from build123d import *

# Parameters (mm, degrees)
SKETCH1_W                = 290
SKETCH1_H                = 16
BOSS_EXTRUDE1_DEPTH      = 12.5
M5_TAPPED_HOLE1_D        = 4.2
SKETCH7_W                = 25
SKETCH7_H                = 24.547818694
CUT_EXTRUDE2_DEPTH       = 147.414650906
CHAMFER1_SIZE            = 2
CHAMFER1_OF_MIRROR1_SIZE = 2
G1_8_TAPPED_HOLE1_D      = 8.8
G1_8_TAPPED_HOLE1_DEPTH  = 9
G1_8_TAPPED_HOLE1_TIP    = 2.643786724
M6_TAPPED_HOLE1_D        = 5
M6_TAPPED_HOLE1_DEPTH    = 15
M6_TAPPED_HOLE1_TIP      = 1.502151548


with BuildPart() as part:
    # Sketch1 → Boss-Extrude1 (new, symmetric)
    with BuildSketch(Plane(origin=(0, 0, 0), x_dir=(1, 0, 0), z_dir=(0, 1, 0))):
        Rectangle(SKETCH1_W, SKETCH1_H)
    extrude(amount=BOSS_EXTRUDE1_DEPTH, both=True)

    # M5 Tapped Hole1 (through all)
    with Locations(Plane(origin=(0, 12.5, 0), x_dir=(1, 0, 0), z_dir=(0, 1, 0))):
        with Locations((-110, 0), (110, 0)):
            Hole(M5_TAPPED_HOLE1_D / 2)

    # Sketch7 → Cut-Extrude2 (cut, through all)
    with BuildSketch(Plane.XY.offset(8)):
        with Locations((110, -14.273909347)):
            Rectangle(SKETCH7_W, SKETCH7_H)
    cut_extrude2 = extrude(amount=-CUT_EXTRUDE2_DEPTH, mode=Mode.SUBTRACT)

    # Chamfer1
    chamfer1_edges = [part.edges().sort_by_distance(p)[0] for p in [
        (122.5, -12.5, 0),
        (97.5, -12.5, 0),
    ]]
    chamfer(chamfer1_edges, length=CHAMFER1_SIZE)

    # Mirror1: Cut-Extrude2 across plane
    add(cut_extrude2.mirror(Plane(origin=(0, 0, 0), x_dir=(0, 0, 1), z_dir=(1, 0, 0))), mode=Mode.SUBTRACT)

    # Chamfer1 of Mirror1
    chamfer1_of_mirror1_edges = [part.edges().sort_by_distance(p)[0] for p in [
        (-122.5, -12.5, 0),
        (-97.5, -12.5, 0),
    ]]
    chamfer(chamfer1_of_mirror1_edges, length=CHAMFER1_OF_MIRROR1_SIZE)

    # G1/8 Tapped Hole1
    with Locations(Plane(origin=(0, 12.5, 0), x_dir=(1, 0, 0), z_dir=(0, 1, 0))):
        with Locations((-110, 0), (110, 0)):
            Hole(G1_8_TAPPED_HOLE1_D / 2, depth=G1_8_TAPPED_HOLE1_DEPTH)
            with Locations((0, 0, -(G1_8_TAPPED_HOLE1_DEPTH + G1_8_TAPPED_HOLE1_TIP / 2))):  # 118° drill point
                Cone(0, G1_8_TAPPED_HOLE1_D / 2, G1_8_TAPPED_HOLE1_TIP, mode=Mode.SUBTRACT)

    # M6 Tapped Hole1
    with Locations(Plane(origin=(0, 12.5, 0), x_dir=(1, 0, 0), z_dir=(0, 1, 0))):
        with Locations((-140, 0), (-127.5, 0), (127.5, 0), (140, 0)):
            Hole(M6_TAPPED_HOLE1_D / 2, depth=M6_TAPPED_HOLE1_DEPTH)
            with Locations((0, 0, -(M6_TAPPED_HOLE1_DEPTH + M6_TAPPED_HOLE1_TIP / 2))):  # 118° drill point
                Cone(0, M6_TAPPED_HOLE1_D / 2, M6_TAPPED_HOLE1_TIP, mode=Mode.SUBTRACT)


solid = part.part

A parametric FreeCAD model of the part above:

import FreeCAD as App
import Part
import Sketcher
Q = App.Units.Quantity


def edges_at(feature, points):
    """Names of the edges that pass closest to the given points."""
    edges = feature.Shape.Edges
    near = lambda p: min(range(len(edges)), key=lambda i: edges[i].distToShape(Part.Vertex(*p))[0])
    return sorted({f"Edge{near(p) + 1}" for p in points})


def add_polygon(sketch, points):
    """Adds a closed chain of lines whose ends are joined by coincident constraints."""
    first, n = sketch.GeometryCount, len(points)
    for a, b in zip(points, points[1:] + points[:1]):
        sketch.addGeometry(Part.LineSegment(App.Vector(*a, 0), App.Vector(*b, 0)), False)
    for i in range(n):
        sketch.addConstraint(Sketcher.Constraint("Coincident", first + i, 2, first + (i + 1) % n, 1))

doc = App.newDocument("Part")
body = doc.addObject("PartDesign::Body", "Body")

sketch1 = body.newObject("Sketcher::SketchObject", "Sketch")
sketch1.AttachmentSupport = (doc.getObject("XZ_Plane"), [""])
sketch1.MapMode = "FlatFace"
add_polygon(sketch1, [(-145, -8), (-145, 8), (145, 8), (145, -8)])
sketch1.addConstraint([
    Sketcher.Constraint("Vertical", 0),
    Sketcher.Constraint("Horizontal", 1),
    Sketcher.Constraint("Vertical", 2),
    Sketcher.Constraint("Horizontal", 3),
    Sketcher.Constraint("Symmetric", 0, 2, 2, 2, -1, 1),
    Sketcher.Constraint("DistanceX", 1, 1, 1, 2, Q("290 mm")),
    Sketcher.Constraint("DistanceY", 0, 1, 0, 2, Q("16 mm")),
])
pad1 = body.newObject("PartDesign::Pad", "Pad")
pad1.Profile = sketch1
pad1.Length = 25
pad1.Midplane = True

sketch2 = body.newObject("Sketcher::SketchObject", "Sketch001")
sketch2.AttachmentSupport = (doc.getObject("XZ_Plane"), [""])
sketch2.MapMode = "FlatFace"
sketch2.AttachmentOffset = App.Placement(App.Vector(0, 0, -12.5), App.Rotation())
sketch2.addGeometry([
    Part.Circle(App.Vector(-110, 0, 0), App.Vector(0, 0, 1), 2.1),
    Part.Circle(App.Vector(110, 0, 0), App.Vector(0, 0, 1), 2.1),
], False)
sketch2.addConstraint([
    Sketcher.Constraint("Equal", 0, 1),
    Sketcher.Constraint("Symmetric", 0, 3, 1, 3, -1, 1),
    Sketcher.Constraint("PointOnObject", 0, 3, -1),
    Sketcher.Constraint("Diameter", 0, Q("4.2 mm")),
    Sketcher.Constraint("DistanceX", 0, 3, -1, 1, Q("110 mm")),
])
doc.recompute()
hole = body.newObject("PartDesign::Hole", "Hole")
hole.Profile = sketch2
hole.ThreadType = "None"
hole.Diameter = 4.2
hole.DepthType = "ThroughAll"
hole.Reversed = True

sketch3 = body.newObject("Sketcher::SketchObject", "Sketch002")
sketch3.AttachmentSupport = (doc.getObject("XY_Plane"), [""])
sketch3.MapMode = "FlatFace"
sketch3.AttachmentOffset = App.Placement(App.Vector(0, 0, 8), App.Rotation())
add_polygon(sketch3, [(97.5, -2), (97.5, -26.547819), (122.5, -26.547819), (122.5, -2)])
sketch3.addConstraint([
    Sketcher.Constraint("Vertical", 0),
    Sketcher.Constraint("Horizontal", 1),
    Sketcher.Constraint("Vertical", 2),
    Sketcher.Constraint("Horizontal", 3),
    Sketcher.Constraint("DistanceX", 1, 1, 1, 2, Q("25 mm")),
    Sketcher.Constraint("DistanceY", 2, 2, -1, 1, Q("2 mm")),
    Sketcher.Constraint("DistanceX", -1, 1, 0, 2, Q("97.5 mm")),
    Sketcher.Constraint("DistanceY", 0, 2, 0, 1, Q("24.547819 mm")),
])
pocket1 = body.newObject("PartDesign::Pocket", "Pocket")
pocket1.Profile = sketch3
pocket1.Type = "ThroughAll"
doc.recompute()

chamfer = body.newObject("PartDesign::Chamfer", "Chamfer")
chamfer.Base = (pocket1, edges_at(pocket1, [(122.5, -12.5, 0), (97.5, -12.5, 0)]))
chamfer.Size = 2
doc.recompute()

mirrored = body.newObject("PartDesign::Mirrored", "Mirrored")
mirrored.Originals = [pocket1]
mirrored.MirrorPlane = (doc.getObject("YZ_Plane"), [""])
body.Tip = mirrored
doc.recompute()

chamfer2 = body.newObject("PartDesign::Chamfer", "Chamfer001")
chamfer2.Base = (mirrored, edges_at(mirrored, [(-122.5, -12.5, 0), (-97.5, -12.5, 0)]))
chamfer2.Size = 2

sketch4 = body.newObject("Sketcher::SketchObject", "Sketch003")
sketch4.AttachmentSupport = (doc.getObject("XZ_Plane"), [""])
sketch4.MapMode = "FlatFace"
sketch4.AttachmentOffset = App.Placement(App.Vector(0, 0, -12.5), App.Rotation())
sketch4.addGeometry([
    Part.Circle(App.Vector(-110, 0, 0), App.Vector(0, 0, 1), 4.4),
    Part.Circle(App.Vector(110, 0, 0), App.Vector(0, 0, 1), 4.4),
], False)
sketch4.addConstraint([
    Sketcher.Constraint("Equal", 0, 1),
    Sketcher.Constraint("Symmetric", 0, 3, 1, 3, -1, 1),
    Sketcher.Constraint("PointOnObject", 0, 3, -1),
    Sketcher.Constraint("Diameter", 0, Q("8.8 mm")),
    Sketcher.Constraint("DistanceX", 0, 3, -1, 1, Q("110 mm")),
])
doc.recompute()
hole2 = body.newObject("PartDesign::Hole", "Hole001")
hole2.Profile = sketch4
hole2.ThreadType = "None"
hole2.Diameter = 8.8
hole2.DepthType = "Dimension"
hole2.Depth = 9
hole2.DrillPoint = "Angled"
hole2.DrillPointAngle = 118
hole2.Reversed = True

sketch5 = body.newObject("Sketcher::SketchObject", "Sketch004")
sketch5.AttachmentSupport = (doc.getObject("XZ_Plane"), [""])
sketch5.MapMode = "FlatFace"
sketch5.AttachmentOffset = App.Placement(App.Vector(0, 0, -12.5), App.Rotation())
sketch5.addGeometry([
    Part.Circle(App.Vector(-140, 0, 0), App.Vector(0, 0, 1), 2.5),
    Part.Circle(App.Vector(-127.5, 0, 0), App.Vector(0, 0, 1), 2.5),
    Part.Circle(App.Vector(127.5, 0, 0), App.Vector(0, 0, 1), 2.5),
    Part.Circle(App.Vector(140, 0, 0), App.Vector(0, 0, 1), 2.5),
], False)
sketch5.addConstraint([
    Sketcher.Constraint("Equal", 0, 1),
    Sketcher.Constraint("Equal", 1, 2),
    Sketcher.Constraint("Equal", 2, 3),
    Sketcher.Constraint("Symmetric", 1, 3, 2, 3, -1, 1),
    Sketcher.Constraint("Symmetric", 0, 3, 3, 3, -1, 1),
    Sketcher.Constraint("PointOnObject", 0, 3, -1),
    Sketcher.Constraint("PointOnObject", 1, 3, -1),
    Sketcher.Constraint("Diameter", 0, Q("5 mm")),
    Sketcher.Constraint("DistanceX", 0, 3, -1, 1, Q("140 mm")),
    Sketcher.Constraint("DistanceX", 1, 3, 2, 3, Q("255 mm")),
])
doc.recompute()
hole3 = body.newObject("PartDesign::Hole", "Hole002")
hole3.Profile = sketch5
hole3.ThreadType = "None"
hole3.Diameter = 5
hole3.DepthType = "Dimension"
hole3.Depth = 15
hole3.DrillPoint = "Angled"
hole3.DrillPointAngle = 118
hole3.Reversed = True

doc.recompute()
